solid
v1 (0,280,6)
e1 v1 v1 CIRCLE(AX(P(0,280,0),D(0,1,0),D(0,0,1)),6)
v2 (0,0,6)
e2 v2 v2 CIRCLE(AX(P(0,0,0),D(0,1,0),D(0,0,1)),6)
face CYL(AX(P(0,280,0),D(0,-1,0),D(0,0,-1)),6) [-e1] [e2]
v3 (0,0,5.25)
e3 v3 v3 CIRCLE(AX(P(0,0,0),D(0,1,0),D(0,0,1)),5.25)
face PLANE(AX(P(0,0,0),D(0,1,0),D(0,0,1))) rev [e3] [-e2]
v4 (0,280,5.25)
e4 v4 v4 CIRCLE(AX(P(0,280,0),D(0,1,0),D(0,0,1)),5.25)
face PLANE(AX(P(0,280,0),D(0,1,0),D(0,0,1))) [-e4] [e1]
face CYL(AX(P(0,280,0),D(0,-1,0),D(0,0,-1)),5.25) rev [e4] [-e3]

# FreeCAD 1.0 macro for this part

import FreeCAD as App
import Part
import Sketcher

V = App.Vector
Q = App.Units.Quantity

doc = App.newDocument("Part")
body = doc.addObject("PartDesign::Body", "Body")

sketch1 = body.newObject("Sketcher::SketchObject", "Sketch")
sketch1.AttachmentSupport = (doc.getObject("XZ_Plane"), [""])
sketch1.MapMode = "FlatFace"
sketch1.addGeometry(Part.Circle(V(0, 0, 0), V(0, 0, 1), 6), False)
sketch1.addGeometry(Part.Circle(V(0, 0, 0), V(0, 0, 1), 5), False)
sketch1.addConstraint(Sketcher.Constraint("Coincident", 0, 3, -1, 1))
sketch1.addConstraint(Sketcher.Constraint("Coincident", 1, 3, -1, 1))
sketch1.addConstraint(Sketcher.Constraint("Diameter", 0, Q("12 mm")))
sketch1.addConstraint(Sketcher.Constraint("Diameter", 1, Q("10.5 mm")))
pad1 = body.newObject("PartDesign::Pad", "Pad")
pad1.Profile = sketch1
pad1.Length = 280
pad1.Reversed = True

doc.recompute()
